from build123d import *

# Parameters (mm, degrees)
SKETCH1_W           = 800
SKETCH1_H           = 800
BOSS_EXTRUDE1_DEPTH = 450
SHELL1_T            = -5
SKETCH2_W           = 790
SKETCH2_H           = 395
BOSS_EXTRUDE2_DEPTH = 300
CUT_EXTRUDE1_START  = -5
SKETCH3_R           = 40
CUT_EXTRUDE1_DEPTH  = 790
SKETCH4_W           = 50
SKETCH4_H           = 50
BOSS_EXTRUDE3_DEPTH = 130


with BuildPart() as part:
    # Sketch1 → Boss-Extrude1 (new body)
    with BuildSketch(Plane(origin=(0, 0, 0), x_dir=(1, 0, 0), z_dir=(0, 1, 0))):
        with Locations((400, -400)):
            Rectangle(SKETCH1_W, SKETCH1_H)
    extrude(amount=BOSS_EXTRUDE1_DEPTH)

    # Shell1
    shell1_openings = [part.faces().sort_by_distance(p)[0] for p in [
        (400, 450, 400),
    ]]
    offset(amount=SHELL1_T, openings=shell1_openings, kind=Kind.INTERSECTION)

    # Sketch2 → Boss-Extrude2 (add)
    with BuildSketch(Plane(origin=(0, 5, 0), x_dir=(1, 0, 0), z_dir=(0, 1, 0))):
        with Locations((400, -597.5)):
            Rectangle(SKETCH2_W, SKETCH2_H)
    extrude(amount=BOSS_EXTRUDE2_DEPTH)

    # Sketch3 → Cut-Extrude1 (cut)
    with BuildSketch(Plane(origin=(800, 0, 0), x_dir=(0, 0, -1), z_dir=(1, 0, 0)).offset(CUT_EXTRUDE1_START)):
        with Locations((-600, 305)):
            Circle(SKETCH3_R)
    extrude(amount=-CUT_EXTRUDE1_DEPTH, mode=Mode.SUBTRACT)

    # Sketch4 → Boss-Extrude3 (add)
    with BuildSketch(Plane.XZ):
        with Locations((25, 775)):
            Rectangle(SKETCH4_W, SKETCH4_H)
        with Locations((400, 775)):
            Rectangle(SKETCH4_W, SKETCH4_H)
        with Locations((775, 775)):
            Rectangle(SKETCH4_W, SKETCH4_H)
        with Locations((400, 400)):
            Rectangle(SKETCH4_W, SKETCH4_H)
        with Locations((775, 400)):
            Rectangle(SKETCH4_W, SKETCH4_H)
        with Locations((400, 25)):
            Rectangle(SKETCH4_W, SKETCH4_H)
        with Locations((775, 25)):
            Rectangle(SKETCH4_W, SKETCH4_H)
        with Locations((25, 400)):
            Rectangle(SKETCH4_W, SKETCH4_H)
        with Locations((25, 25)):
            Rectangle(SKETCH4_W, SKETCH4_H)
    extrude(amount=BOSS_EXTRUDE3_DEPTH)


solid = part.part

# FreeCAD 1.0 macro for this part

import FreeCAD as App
import Part
import Sketcher
Q = App.Units.Quantity


def faces_at(feature, points):
    """Names of the faces that lie closest to the given points."""
    faces = feature.Shape.Faces
    near = lambda p: min(range(len(faces)), key=lambda i: faces[i].distToShape(Part.Vertex(*p))[0])
    return sorted({f"Face{near(p) + 1}" for p in points})


def add_polygon(sketch, points):
    """Adds a closed chain of lines whose ends are joined by coincident constraints."""
    first, n = sketch.GeometryCount, len(points)
    for a, b in zip(points, points[1:] + points[:1]):
        sketch.addGeometry(Part.LineSegment(App.Vector(*a, 0), App.Vector(*b, 0)), False)
    for i in range(n):
        sketch.addConstraint(Sketcher.Constraint("Coincident", first + i, 2, first + (i + 1) % n, 1))

doc = App.newDocument("Part")
body = doc.addObject("PartDesign::Body", "Body")

# Sketch on XZ plane
sketch1 = doc.addObject("Sketcher::SketchObject", "Sketch")
body.addObject(sketch1)
sketch1.AttachmentSupport = (doc.XZ_Plane, [""])
sketch1.MapMode = "FlatFace"
add_polygon(sketch1, [(0, 0), (0, 800), (800, 800), (800, 0)])  # lines 0-3
sketch1.addConstraint([
    Sketcher.Constraint("Vertical", 0),
    Sketcher.Constraint("Horizontal", 1),
    Sketcher.Constraint("Vertical", 2),
    Sketcher.Constraint("Horizontal", 3),
    Sketcher.Constraint("Coincident", 3, 2, -1, 1),
    Sketcher.Constraint("Equal", 3, 0),
    Sketcher.Constraint("DistanceX", 1, 1, 1, 2, Q("800 mm")),
])
pad1 = doc.addObject("PartDesign::Pad", "Pad")
body.addObject(pad1)
pad1.Profile = sketch1
pad1.Length = 450
pad1.Reversed = True
doc.recompute()

thickness = doc.addObject("PartDesign::Thickness", "Thickness")
body.addObject(thickness)
thickness.Base = (pad1, faces_at(pad1, [(400, 450, 400)]))
thickness.Value = 5
thickness.Reversed = True
thickness.Join = "Intersection"

# Sketch on XZ plane
sketch2 = doc.addObject("Sketcher::SketchObject", "Sketch001")
body.addObject(sketch2)
sketch2.AttachmentSupport = (doc.XZ_Plane, [""])
sketch2.MapMode = "FlatFace"
sketch2.AttachmentOffset = App.Placement(App.Vector(0, 0, -5), App.Rotation())
add_polygon(sketch2, [(5, 400), (5, 795), (795, 795), (795, 400)])  # lines 0-3
sketch2.addConstraint([
    Sketcher.Constraint("Vertical", 0),
    Sketcher.Constraint("Horizontal", 1),
    Sketcher.Constraint("Vertical", 2),
    Sketcher.Constraint("Horizontal", 3),
    Sketcher.Constraint("DistanceX", 1, 1, 1, 2, Q("790 mm")),
    Sketcher.Constraint("DistanceY", 0, 1, 0, 2, Q("395 mm")),
    Sketcher.Constraint("DistanceX", -1, 1, 0, 2, Q("5 mm")),
    Sketcher.Constraint("DistanceY", -1, 1, 0, 2, Q("795 mm")),
])
pad2 = doc.addObject("PartDesign::Pad", "Pad001")
body.addObject(pad2)
pad2.Profile = sketch2
pad2.Length = 300
pad2.Reversed = True

# Sketch on YZ plane
sketch3 = doc.addObject("Sketcher::SketchObject", "Sketch002")
body.addObject(sketch3)
sketch3.AttachmentSupport = (doc.YZ_Plane, [""])
sketch3.MapMode = "FlatFace"
sketch3.AttachmentOffset = App.Placement(App.Vector(0, 0, 795), App.Rotation())
sketch3.addGeometry(Part.Circle(App.Vector(305, 600, 0), App.Vector(0, 0, 1), 40), False)
sketch3.addConstraint([
    Sketcher.Constraint("Diameter", 0, Q("80 mm")),
    Sketcher.Constraint("DistanceX", -1, 1, 0, 3, Q("305 mm")),
    Sketcher.Constraint("DistanceY", -1, 1, 0, 3, Q("600 mm")),
])
pocket1 = doc.addObject("PartDesign::Pocket", "Pocket")
body.addObject(pocket1)
pocket1.Profile = sketch3
pocket1.Length = 790

# Sketch on XZ plane
sketch4 = doc.addObject("Sketcher::SketchObject", "Sketch003")
body.addObject(sketch4)
sketch4.AttachmentSupport = (doc.XZ_Plane, [""])
sketch4.MapMode = "FlatFace"
add_polygon(sketch4, [(0, 800), (0, 750), (50, 750), (50, 800)])  # lines 0-3
add_polygon(sketch4, [(375, 800), (375, 750), (425, 750), (425, 800)])  # lines 4-7
add_polygon(sketch4, [(750, 800), (750, 750), (800, 750), (800, 800)])  # lines 8-11
add_polygon(sketch4, [(375, 425), (375, 375), (425, 375), (425, 425)])  # lines 12-15
add_polygon(sketch4, [(750, 425), (750, 375), (800, 375), (800, 425)])  # lines 16-19
add_polygon(sketch4, [(375, 50), (375, 0), (425, 0), (425, 50)])  # lines 20-23
add_polygon(sketch4, [(750, 50), (750, 0), (800, 0), (800, 50)])  # lines 24-27
add_polygon(sketch4, [(0, 425), (0, 375), (50, 375), (50, 425)])  # lines 28-31
add_polygon(sketch4, [(0, 50), (0, 0), (50, 0), (50, 50)])  # lines 32-35
sketch4.addConstraint([
    Sketcher.Constraint("Vertical", 0),
    Sketcher.Constraint("Horizontal", 1),
    Sketcher.Constraint("Vertical", 2),
    Sketcher.Constraint("Horizontal", 3),
    Sketcher.Constraint("Vertical", 4),
    Sketcher.Constraint("Horizontal", 5),
    Sketcher.Constraint("Vertical", 6),
    Sketcher.Constraint("Horizontal", 7),
    Sketcher.Constraint("Vertical", 8),
    Sketcher.Constraint("Horizontal", 9),
    Sketcher.Constraint("Vertical", 10),
    Sketcher.Constraint("Horizontal", 11),
    Sketcher.Constraint("Vertical", 12),
    Sketcher.Constraint("Horizontal", 13),
    Sketcher.Constraint("Vertical", 14),
    Sketcher.Constraint("Horizontal", 15),
    Sketcher.Constraint("Vertical", 16),
    Sketcher.Constraint("Horizontal", 17),
    Sketcher.Constraint("Vertical", 18),
    Sketcher.Constraint("Horizontal", 19),
    Sketcher.Constraint("Vertical", 20),
    Sketcher.Constraint("Horizontal", 21),
    Sketcher.Constraint("Vertical", 22),
    Sketcher.Constraint("Horizontal", 23),
    Sketcher.Constraint("Vertical", 24),
    Sketcher.Constraint("Horizontal", 25),
    Sketcher.Constraint("Vertical", 26),
    Sketcher.Constraint("Horizontal", 27),
    Sketcher.Constraint("Vertical", 28),
    Sketcher.Constraint("Horizontal", 29),
    Sketcher.Constraint("Vertical", 30),
    Sketcher.Constraint("Horizontal", 31),
    Sketcher.Constraint("Vertical", 32),
    Sketcher.Constraint("Horizontal", 33),
    Sketcher.Constraint("Vertical", 34),
    Sketcher.Constraint("Horizontal", 35),
    Sketcher.Constraint("Coincident", 32, 2, -1, 1),
    Sketcher.Constraint("PointOnObject", 0, 2, -2),
    Sketcher.Constraint("PointOnObject", 20, 2, -1),
    Sketcher.Constraint("PointOnObject", 24, 2, -1),
    Sketcher.Constraint("PointOnObject", 28, 2, -2),
    Sketcher.Constraint("Horizontal", 1, 2, 4, 2),
    Sketcher.Constraint("Horizontal", 3, 2, 6, 2),
    Sketcher.Constraint("Horizontal", 5, 2, 8, 2),
    Sketcher.Constraint("Horizontal", 7, 2, 10, 2),
    Sketcher.Constraint("Horizontal", 13, 2, 16, 2),
    Sketcher.Constraint("Horizontal", 15, 2, 18, 2),
    Sketcher.Constraint("Horizontal", 23, 2, 26, 2),
    Sketcher.Constraint("Horizontal", 17, 2, 28, 2),
    Sketcher.Constraint("Horizontal", 19, 2, 30, 2),
    Sketcher.Constraint("Horizontal", 27, 2, 34, 2),
    Sketcher.Constraint("Vertical", 7, 2, 12, 2),
    Sketcher.Constraint("Vertical", 6, 2, 13, 2),
    Sketcher.Constraint("Vertical", 11, 2, 16, 2),
    Sketcher.Constraint("Vertical", 10, 2, 17, 2),
    Sketcher.Constraint("Vertical", 15, 2, 20, 2),
    Sketcher.Constraint("Vertical", 14, 2, 21, 2),
    Sketcher.Constraint("Vertical", 19, 2, 24, 2),
    Sketcher.Constraint("Vertical", 18, 2, 25, 2),
    Sketcher.Constraint("Vertical", 2, 2, 29, 2),
    Sketcher.Constraint("Vertical", 30, 2, 33, 2),
    Sketcher.Constraint("Equal", 3, 5),
    Sketcher.Constraint("Equal", 7, 9),
    Sketcher.Constraint("Equal", 35, 0),
    Sketcher.Constraint("Equal", 10, 12),
    Sketcher.Constraint("Equal", 18, 20),
    Sketcher.Constraint("DistanceX", 1, 1, 1, 2, Q("50 mm")),
    Sketcher.Constraint("DistanceY", -1, 1, 0, 2, Q("750 mm")),
    Sketcher.Constraint("DistanceX", -1, 1, 4, 2, Q("375 mm")),
    Sketcher.Constraint("DistanceX", -1, 1, 8, 2, Q("750 mm")),
    Sketcher.Constraint("DistanceY", -1, 1, 12, 2, Q("375 mm")),
])
pad3 = doc.addObject("PartDesign::Pad", "Pad002")
body.addObject(pad3)
pad3.Profile = sketch4
pad3.Length = 130

doc.recompute()
